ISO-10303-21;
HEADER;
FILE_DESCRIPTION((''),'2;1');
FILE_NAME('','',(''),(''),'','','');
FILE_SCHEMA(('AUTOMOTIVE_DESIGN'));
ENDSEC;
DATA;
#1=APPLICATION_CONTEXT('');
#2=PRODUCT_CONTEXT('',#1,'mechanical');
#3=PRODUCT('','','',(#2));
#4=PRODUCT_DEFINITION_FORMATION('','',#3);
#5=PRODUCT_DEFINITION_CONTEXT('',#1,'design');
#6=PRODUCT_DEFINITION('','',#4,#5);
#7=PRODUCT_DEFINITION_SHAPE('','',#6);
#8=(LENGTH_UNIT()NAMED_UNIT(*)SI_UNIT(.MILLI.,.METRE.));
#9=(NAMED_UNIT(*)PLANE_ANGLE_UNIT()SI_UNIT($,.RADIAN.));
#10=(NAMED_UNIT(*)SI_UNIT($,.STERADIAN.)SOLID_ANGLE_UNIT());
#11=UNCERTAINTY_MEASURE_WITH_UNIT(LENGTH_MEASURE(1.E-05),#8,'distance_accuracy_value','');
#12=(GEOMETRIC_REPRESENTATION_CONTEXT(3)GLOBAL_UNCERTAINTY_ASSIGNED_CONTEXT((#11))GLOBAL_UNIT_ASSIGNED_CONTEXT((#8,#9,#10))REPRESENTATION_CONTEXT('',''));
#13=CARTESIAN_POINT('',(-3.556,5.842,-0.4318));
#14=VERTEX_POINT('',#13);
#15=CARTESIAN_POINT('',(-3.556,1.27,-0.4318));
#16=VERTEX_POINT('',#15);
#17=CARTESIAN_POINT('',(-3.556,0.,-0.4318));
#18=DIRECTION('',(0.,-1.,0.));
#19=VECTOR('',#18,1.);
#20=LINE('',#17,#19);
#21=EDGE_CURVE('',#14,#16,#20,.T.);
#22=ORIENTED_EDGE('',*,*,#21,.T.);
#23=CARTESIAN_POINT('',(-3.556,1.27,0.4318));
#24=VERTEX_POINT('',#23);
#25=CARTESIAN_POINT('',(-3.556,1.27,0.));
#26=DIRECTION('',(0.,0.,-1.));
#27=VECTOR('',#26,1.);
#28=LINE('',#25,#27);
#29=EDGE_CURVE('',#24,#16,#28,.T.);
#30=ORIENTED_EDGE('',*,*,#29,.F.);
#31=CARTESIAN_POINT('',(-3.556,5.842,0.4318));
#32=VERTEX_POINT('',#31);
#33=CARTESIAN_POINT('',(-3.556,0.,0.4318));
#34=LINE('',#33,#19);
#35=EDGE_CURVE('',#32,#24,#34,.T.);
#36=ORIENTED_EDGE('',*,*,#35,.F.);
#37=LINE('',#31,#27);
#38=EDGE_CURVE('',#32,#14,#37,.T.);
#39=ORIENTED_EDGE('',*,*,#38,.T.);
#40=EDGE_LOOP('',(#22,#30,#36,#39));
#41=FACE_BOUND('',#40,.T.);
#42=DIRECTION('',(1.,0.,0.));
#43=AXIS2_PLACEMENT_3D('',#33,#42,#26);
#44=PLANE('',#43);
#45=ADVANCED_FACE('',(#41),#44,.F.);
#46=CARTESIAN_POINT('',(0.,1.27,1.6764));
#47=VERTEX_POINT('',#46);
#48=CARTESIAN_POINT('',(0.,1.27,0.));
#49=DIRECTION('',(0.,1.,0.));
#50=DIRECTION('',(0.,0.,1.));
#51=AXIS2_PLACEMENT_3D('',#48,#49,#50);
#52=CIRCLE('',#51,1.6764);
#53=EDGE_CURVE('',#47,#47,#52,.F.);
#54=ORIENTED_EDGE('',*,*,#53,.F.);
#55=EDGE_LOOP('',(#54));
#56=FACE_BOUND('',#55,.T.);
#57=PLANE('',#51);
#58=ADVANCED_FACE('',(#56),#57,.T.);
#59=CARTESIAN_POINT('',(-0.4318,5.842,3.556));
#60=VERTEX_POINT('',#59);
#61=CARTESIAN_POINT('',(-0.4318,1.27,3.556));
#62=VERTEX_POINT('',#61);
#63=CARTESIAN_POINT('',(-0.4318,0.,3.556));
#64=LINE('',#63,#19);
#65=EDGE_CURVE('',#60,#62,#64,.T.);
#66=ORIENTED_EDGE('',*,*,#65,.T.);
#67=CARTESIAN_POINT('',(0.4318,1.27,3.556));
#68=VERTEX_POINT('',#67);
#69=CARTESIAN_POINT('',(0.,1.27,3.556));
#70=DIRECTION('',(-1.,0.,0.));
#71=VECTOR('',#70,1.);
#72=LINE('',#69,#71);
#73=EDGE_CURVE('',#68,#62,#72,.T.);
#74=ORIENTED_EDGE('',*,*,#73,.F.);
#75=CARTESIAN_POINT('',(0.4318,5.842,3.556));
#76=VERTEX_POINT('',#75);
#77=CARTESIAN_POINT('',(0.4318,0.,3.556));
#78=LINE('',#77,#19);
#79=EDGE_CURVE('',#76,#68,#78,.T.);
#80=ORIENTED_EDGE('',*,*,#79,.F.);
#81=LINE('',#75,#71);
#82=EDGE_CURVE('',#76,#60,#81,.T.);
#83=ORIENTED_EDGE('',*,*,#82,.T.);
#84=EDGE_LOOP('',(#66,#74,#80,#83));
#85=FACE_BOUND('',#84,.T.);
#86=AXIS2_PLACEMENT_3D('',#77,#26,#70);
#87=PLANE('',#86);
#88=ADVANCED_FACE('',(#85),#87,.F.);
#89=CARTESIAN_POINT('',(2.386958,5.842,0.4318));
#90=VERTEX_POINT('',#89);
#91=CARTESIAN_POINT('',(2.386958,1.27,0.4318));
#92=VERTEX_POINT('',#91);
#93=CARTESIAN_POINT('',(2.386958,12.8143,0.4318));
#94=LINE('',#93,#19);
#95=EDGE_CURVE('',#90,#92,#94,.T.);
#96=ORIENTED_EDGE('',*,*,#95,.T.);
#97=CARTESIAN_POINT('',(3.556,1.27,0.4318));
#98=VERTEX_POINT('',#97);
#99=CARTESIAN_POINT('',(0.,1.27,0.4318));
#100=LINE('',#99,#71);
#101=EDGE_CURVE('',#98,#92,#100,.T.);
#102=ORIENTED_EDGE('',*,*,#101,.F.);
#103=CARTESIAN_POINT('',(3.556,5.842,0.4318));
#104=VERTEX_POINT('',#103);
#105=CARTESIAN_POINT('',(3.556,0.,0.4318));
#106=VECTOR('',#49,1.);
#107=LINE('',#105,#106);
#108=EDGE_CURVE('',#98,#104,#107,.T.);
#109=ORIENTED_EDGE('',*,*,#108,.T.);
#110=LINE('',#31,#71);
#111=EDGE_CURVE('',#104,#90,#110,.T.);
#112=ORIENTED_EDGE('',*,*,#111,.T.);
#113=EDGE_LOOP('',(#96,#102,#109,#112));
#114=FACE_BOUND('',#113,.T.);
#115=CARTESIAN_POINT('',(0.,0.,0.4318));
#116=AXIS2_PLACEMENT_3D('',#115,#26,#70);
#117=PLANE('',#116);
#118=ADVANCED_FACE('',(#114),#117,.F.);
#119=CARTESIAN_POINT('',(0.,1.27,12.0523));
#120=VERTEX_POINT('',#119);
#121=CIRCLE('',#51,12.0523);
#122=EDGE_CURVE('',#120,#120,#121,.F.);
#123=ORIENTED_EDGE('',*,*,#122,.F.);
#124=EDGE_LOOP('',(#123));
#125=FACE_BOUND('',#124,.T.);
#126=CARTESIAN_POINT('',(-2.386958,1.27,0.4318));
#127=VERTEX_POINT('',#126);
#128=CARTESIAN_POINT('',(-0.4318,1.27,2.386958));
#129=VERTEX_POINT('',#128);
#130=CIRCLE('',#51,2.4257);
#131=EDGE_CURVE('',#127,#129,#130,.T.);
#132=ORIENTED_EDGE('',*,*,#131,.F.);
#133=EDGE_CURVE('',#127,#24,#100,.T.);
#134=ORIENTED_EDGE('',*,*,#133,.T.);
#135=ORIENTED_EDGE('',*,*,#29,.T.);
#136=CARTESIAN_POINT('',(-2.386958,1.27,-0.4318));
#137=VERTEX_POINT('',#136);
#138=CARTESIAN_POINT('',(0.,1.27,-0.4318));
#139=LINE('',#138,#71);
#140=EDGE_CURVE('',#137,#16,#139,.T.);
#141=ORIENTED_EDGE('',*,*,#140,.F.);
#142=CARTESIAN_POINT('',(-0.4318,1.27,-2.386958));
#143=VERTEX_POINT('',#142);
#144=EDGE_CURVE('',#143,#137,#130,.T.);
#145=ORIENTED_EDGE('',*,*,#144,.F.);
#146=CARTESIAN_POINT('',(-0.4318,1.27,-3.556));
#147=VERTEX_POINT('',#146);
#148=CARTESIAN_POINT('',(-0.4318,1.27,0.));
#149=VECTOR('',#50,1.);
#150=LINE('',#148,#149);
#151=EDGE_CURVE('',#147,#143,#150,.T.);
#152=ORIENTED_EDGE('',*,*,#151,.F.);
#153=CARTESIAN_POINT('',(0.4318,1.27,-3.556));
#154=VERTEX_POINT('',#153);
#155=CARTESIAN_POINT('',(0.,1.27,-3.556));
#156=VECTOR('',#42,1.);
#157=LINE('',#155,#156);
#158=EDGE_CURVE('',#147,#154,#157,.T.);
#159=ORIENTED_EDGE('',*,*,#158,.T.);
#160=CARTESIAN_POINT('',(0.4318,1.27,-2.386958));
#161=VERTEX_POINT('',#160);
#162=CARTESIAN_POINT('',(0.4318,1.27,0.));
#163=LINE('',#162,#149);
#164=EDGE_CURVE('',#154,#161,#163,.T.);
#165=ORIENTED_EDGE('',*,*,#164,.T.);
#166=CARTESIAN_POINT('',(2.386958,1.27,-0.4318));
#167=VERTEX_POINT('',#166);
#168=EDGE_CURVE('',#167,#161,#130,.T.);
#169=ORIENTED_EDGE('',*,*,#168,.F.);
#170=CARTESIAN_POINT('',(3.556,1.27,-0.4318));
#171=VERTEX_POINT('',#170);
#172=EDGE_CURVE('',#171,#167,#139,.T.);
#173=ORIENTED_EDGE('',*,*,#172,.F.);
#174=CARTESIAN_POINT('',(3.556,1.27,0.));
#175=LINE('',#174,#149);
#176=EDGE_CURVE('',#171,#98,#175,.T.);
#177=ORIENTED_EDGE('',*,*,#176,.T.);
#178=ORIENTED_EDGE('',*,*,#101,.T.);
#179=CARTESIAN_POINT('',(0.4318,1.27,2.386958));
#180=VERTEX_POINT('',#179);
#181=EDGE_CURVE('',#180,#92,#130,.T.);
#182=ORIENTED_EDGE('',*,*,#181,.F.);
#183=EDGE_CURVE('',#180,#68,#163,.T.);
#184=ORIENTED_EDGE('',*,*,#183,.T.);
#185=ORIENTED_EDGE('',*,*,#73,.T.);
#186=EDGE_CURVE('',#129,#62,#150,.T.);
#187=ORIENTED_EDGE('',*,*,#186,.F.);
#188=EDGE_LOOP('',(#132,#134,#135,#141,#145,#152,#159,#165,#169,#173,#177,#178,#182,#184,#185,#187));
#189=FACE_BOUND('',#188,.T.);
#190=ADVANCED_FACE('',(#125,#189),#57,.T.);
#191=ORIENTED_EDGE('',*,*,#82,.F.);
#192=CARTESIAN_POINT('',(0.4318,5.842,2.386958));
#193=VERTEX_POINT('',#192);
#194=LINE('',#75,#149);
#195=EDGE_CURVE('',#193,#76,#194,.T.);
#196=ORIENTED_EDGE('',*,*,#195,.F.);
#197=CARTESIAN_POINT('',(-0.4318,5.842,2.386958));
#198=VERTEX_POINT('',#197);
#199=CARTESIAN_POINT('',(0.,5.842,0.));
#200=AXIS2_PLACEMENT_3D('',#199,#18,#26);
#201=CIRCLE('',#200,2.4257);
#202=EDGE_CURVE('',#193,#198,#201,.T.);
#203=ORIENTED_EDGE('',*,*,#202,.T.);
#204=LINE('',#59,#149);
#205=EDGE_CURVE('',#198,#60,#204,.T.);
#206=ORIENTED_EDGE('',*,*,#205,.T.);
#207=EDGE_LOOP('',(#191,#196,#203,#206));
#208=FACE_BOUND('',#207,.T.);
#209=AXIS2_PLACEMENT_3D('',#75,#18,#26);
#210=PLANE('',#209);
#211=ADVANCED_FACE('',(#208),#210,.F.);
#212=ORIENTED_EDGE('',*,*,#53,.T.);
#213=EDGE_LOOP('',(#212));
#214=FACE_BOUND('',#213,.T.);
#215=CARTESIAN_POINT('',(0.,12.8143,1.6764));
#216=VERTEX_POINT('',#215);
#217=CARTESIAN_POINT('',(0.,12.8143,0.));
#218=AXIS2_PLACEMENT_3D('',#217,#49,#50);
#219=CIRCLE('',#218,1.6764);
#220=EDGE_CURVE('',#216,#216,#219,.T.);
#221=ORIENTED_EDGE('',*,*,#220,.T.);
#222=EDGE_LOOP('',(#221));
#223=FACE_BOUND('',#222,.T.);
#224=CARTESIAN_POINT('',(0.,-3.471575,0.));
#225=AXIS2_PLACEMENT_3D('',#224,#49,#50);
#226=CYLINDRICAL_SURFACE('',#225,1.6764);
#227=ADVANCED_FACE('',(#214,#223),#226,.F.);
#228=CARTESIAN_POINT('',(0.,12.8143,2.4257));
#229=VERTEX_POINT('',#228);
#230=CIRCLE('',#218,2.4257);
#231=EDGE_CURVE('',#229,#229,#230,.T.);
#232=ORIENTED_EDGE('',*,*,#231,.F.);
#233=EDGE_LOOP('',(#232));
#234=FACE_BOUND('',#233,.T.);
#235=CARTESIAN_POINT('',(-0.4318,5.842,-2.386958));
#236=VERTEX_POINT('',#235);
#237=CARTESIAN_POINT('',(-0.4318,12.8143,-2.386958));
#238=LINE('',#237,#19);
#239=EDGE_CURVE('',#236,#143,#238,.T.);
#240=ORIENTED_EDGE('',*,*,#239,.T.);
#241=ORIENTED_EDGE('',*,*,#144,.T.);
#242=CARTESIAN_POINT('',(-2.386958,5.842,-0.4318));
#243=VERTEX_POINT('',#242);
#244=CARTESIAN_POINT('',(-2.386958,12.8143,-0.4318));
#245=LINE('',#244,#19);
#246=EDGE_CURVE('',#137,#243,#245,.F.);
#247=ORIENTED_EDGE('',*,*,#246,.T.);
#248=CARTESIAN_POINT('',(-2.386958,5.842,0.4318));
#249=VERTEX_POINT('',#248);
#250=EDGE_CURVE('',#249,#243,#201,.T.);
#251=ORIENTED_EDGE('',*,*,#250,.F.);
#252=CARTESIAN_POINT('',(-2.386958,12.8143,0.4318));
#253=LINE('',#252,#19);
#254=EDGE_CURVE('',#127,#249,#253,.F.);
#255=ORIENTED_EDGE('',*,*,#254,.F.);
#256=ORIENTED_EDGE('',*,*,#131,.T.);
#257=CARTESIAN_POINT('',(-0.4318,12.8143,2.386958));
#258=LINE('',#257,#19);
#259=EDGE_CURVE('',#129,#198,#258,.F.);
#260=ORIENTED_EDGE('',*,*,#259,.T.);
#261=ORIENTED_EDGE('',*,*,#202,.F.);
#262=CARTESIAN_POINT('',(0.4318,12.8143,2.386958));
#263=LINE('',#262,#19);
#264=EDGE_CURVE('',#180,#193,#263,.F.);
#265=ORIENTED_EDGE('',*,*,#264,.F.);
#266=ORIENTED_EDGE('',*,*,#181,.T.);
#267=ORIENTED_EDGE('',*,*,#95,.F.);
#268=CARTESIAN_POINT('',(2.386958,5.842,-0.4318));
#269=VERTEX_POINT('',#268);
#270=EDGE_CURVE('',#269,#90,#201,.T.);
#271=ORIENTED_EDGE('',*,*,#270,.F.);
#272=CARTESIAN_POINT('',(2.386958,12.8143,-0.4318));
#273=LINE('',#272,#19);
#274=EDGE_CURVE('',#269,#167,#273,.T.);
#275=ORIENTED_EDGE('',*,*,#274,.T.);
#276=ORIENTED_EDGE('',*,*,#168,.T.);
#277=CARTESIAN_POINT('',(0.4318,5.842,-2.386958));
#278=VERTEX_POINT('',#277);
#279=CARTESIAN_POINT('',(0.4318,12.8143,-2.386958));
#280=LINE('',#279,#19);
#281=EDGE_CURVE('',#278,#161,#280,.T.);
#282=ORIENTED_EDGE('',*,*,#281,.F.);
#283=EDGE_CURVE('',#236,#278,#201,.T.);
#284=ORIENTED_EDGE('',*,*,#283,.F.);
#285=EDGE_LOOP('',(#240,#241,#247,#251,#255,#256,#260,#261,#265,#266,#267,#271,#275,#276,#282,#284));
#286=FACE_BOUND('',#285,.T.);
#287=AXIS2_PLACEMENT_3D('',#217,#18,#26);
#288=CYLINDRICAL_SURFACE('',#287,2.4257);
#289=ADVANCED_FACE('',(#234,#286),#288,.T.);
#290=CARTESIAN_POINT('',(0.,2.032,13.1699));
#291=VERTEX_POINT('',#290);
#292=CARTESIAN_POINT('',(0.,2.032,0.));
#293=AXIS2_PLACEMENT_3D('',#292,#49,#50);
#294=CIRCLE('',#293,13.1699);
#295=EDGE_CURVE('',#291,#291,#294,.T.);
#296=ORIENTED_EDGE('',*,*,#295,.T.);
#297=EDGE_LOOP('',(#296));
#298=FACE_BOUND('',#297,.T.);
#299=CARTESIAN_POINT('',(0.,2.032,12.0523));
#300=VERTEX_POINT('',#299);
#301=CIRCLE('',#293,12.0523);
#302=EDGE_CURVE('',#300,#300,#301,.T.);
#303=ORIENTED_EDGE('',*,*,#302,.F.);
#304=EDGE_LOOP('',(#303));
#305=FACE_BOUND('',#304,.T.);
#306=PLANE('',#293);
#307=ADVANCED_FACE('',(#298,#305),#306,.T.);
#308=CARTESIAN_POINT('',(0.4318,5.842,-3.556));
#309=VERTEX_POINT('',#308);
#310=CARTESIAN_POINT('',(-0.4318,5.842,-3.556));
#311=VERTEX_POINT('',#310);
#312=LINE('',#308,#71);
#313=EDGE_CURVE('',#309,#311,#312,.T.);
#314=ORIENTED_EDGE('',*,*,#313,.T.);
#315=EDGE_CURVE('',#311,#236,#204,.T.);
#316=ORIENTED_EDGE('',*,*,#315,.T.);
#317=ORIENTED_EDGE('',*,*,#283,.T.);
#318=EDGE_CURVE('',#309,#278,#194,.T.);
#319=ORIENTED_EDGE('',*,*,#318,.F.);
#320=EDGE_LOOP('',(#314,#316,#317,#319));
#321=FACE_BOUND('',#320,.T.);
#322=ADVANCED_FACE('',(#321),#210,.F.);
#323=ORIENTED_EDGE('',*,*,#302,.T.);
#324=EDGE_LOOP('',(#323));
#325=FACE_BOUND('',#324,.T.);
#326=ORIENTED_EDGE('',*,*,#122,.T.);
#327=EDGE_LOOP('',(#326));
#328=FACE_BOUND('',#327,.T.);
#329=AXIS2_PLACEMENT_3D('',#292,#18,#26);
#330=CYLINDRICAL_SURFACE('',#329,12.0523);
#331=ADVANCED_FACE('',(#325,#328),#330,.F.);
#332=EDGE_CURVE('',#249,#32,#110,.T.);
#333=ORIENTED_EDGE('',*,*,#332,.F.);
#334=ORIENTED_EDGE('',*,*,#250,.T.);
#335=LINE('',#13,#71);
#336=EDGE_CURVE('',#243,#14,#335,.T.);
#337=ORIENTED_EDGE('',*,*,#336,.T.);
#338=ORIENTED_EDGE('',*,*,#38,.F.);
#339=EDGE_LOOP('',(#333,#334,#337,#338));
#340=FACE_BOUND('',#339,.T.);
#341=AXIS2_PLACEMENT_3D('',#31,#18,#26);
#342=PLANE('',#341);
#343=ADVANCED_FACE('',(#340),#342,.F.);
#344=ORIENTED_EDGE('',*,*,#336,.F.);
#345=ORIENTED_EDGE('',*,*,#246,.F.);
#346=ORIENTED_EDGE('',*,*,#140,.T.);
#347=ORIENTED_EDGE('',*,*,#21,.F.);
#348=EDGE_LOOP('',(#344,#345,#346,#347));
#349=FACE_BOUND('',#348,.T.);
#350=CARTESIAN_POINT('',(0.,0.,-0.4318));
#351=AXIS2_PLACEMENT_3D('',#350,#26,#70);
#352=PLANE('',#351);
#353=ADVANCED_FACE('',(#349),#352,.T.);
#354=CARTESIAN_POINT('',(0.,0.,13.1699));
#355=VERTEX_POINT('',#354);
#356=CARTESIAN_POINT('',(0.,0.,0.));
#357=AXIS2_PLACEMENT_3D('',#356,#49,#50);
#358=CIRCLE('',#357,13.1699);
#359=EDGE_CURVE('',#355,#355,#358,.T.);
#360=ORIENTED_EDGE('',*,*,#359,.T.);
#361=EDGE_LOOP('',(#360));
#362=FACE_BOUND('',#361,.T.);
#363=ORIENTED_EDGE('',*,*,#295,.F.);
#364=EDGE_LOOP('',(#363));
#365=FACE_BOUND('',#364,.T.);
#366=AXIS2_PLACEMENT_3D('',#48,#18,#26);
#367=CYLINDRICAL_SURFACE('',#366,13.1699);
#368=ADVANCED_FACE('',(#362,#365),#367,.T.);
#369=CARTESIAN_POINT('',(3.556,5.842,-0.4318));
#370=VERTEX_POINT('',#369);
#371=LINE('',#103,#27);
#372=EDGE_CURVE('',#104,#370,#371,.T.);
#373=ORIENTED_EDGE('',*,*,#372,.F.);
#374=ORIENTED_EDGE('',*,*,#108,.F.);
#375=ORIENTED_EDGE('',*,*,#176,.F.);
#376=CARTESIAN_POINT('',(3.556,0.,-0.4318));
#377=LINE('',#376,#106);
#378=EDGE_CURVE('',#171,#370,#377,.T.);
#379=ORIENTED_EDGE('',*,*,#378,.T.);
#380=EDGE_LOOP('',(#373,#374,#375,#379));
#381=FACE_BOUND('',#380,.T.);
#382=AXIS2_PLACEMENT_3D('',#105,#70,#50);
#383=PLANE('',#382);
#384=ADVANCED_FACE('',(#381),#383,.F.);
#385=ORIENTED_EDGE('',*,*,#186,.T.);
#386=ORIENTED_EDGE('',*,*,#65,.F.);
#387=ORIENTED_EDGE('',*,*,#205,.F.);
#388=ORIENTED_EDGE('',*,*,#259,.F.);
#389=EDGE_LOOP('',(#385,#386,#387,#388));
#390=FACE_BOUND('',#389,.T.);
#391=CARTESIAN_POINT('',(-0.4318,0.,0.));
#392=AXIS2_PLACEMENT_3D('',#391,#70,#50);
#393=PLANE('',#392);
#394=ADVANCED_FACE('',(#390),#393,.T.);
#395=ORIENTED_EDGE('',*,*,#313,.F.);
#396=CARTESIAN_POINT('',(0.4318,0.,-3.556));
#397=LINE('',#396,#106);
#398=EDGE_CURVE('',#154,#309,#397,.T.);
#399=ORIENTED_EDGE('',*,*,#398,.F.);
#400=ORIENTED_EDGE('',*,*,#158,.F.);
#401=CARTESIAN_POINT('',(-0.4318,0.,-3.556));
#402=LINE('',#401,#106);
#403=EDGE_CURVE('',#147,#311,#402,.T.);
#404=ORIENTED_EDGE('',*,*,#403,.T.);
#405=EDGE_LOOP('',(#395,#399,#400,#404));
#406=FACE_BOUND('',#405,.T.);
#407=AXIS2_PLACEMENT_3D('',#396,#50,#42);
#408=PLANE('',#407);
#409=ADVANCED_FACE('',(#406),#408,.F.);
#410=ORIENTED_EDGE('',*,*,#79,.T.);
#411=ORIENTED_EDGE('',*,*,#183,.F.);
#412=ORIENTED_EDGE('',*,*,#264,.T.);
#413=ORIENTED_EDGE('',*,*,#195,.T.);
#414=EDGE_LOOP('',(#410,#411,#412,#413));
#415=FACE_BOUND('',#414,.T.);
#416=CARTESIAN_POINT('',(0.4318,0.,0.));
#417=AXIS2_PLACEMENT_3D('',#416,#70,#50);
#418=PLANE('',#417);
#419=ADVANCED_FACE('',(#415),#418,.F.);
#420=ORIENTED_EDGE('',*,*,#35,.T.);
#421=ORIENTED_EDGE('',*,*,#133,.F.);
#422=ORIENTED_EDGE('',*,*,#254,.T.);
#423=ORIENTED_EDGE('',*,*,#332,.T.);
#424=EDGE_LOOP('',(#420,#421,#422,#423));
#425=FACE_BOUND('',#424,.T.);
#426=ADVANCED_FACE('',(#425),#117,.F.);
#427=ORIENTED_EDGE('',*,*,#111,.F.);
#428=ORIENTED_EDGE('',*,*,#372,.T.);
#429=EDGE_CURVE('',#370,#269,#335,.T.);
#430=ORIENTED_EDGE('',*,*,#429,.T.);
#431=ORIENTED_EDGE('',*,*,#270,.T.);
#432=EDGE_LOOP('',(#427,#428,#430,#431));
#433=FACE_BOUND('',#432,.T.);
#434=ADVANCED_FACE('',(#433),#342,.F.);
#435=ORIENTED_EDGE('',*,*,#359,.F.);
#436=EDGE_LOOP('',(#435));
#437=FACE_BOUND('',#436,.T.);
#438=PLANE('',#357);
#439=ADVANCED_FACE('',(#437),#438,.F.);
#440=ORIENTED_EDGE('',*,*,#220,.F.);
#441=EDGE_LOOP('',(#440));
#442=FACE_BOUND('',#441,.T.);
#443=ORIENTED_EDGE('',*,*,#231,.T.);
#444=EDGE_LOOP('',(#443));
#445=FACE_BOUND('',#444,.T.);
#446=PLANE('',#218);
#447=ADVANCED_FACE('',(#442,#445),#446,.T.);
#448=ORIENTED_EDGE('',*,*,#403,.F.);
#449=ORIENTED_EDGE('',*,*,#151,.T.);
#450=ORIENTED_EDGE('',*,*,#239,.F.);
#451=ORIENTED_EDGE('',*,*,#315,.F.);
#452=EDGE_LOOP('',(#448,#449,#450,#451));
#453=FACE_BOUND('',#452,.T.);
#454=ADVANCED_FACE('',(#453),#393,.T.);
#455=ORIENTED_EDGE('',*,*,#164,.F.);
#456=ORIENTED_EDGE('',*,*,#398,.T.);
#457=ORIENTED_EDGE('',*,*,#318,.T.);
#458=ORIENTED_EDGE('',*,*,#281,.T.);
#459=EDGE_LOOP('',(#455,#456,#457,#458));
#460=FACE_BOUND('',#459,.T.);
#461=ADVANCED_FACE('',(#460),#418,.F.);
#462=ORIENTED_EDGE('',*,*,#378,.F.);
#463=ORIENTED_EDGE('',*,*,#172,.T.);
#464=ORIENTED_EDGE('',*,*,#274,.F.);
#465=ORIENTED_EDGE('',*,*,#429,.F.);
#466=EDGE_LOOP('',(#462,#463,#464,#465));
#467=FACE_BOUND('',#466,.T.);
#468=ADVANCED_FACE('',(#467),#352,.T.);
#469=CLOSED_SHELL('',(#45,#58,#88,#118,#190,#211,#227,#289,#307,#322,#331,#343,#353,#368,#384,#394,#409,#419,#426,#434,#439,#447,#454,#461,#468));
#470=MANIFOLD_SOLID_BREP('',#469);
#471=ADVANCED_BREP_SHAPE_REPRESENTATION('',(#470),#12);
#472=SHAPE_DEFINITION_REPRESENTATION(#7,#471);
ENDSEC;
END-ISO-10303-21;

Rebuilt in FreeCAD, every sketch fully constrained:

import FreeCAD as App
import Part
import Sketcher

V = App.Vector
Q = App.Units.Quantity


def add_polygon(sketch, points):
    """Adds a closed chain of lines whose ends are joined by coincident constraints."""
    first, n = sketch.GeometryCount, len(points)
    for a, b in zip(points, points[1:] + points[:1]):
        sketch.addGeometry(Part.LineSegment(App.Vector(*a, 0), App.Vector(*b, 0)), False)
    for i in range(n):
        sketch.addConstraint(Sketcher.Constraint("Coincident", first + i, 2, first + (i + 1) % n, 1))

doc = App.newDocument("Part")
body = doc.addObject("PartDesign::Body", "Body")

# Sketch on XZ plane
sketch1 = doc.addObject("Sketcher::SketchObject", "Sketch")
body.addObject(sketch1)
sketch1.AttachmentSupport = (doc.XZ_Plane, [""])
sketch1.MapMode = "FlatFace"
sketch1.addGeometry(Part.Circle(V(0, 0, 0), V(0, 0, 1), 13.1699), False)
sketch1.addConstraint([
    Sketcher.Constraint("Coincident", 0, 3, -1, 1),
    Sketcher.Constraint("Diameter", 0, Q("1.037 in")),
])
pad1 = doc.addObject("PartDesign::Pad", "Pad")
body.addObject(pad1)
pad1.Profile = sketch1
pad1.Length = Q("0.05 in")
pad1.Reversed = True

# Sketch on XZ plane
sketch2 = doc.addObject("Sketcher::SketchObject", "Sketch001")
body.addObject(sketch2)
sketch2.AttachmentSupport = (doc.XZ_Plane, [""])
sketch2.MapMode = "FlatFace"
sketch2.AttachmentOffset = App.Placement(V(0, 0, -0.05 * 25.4), App.Rotation())
sketch2.addGeometry([
    Part.Circle(V(0, 0, 0), V(0, 0, 1), 13.1699),
    Part.Circle(V(0, 0, 0), V(0, 0, 1), 12.0523),
], False)
sketch2.addConstraint([
    Sketcher.Constraint("Coincident", 0, 3, -1, 1),
    Sketcher.Constraint("Coincident", 1, 3, -1, 1),
    Sketcher.Constraint("Diameter", 0, Q("1.037 in")),
    Sketcher.Constraint("Diameter", 1, Q("0.949 in")),
])
pad2 = doc.addObject("PartDesign::Pad", "Pad001")
body.addObject(pad2)
pad2.Profile = sketch2
pad2.Length = Q("0.03 in")
pad2.Reversed = True

# Sketch on XZ plane
sketch3 = doc.addObject("Sketcher::SketchObject", "Sketch002")
body.addObject(sketch3)
sketch3.AttachmentSupport = (doc.XZ_Plane, [""])
sketch3.MapMode = "FlatFace"
sketch3.AttachmentOffset = App.Placement(V(0, 0, -0.05 * 25.4), App.Rotation())
sketch3.addGeometry(Part.Circle(V(0, 0, 0), V(0, 0, 1), 2.4257), False)
sketch3.addConstraint([
    Sketcher.Constraint("Coincident", 0, 3, -1, 1),
    Sketcher.Constraint("Diameter", 0, Q("0.191 in")),
])
pad3 = doc.addObject("PartDesign::Pad", "Pad002")
body.addObject(pad3)
pad3.Profile = sketch3
pad3.Length = Q("0.4545 in")
pad3.Reversed = True

# Sketch on XY plane
sketch4 = doc.addObject("Sketcher::SketchObject", "Sketch003")
body.addObject(sketch4)
sketch4.AttachmentSupport = (doc.XY_Plane, [""])
sketch4.MapMode = "FlatFace"
add_polygon(sketch4, [(-3.556, 5.842), (-3.556, 0), (3.556, 0), (3.556, 5.842)])  # lines 0-3
sketch4.addConstraint([
    Sketcher.Constraint("Vertical", 0),
    Sketcher.Constraint("Horizontal", 1),
    Sketcher.Constraint("Vertical", 2),
    Sketcher.Constraint("Horizontal", 3),
    Sketcher.Constraint("Symmetric", 0, 2, 1, 2, -1, 1),
    Sketcher.Constraint("DistanceX", 1, 1, 1, 2, Q("0.28 in")),
    Sketcher.Constraint("DistanceY", 0, 2, 0, 1, Q("0.23 in")),
])
pad4 = doc.addObject("PartDesign::Pad", "Pad003")
body.addObject(pad4)
pad4.Profile = sketch4
pad4.Length = Q("0.034 in")
pad4.Midplane = True

# Sketch on YZ plane
sketch5 = doc.addObject("Sketcher::SketchObject", "Sketch004")
body.addObject(sketch5)
sketch5.AttachmentSupport = (doc.YZ_Plane, [""])
sketch5.MapMode = "FlatFace"
add_polygon(sketch5, [(5.842, 3.556), (0, 3.556), (0, -3.556), (5.842, -3.556)])  # lines 0-3
sketch5.addConstraint([
    Sketcher.Constraint("Horizontal", 0),
    Sketcher.Constraint("Vertical", 1),
    Sketcher.Constraint("Horizontal", 2),
    Sketcher.Constraint("Vertical", 3),
    Sketcher.Constraint("Symmetric", 0, 2, 1, 2, -1, 1),
    Sketcher.Constraint("DistanceX", 0, 2, 0, 1, Q("0.23 in")),
    Sketcher.Constraint("DistanceY", 1, 2, 1, 1, Q("0.28 in")),
])
pad5 = doc.addObject("PartDesign::Pad", "Pad004")
body.addObject(pad5)
pad5.Profile = sketch5
pad5.Length = Q("0.034 in")
pad5.Midplane = True

# Sketch on XZ plane
sketch6 = doc.addObject("Sketcher::SketchObject", "Sketch005")
body.addObject(sketch6)
sketch6.AttachmentSupport = (doc.XZ_Plane, [""])
sketch6.MapMode = "FlatFace"
sketch6.AttachmentOffset = App.Placement(V(0, 0, -0.5045 * 25.4), App.Rotation())
sketch6.addGeometry(Part.Circle(V(0, 0, 0), V(0, 0, 1), 1.6764), False)
sketch6.addConstraint([
    Sketcher.Constraint("Coincident", 0, 3, -1, 1),
    Sketcher.Constraint("Diameter", 0, Q("0.132 in")),
])
pocket1 = doc.addObject("PartDesign::Pocket", "Pocket")
body.addObject(pocket1)
pocket1.Profile = sketch6
pocket1.Length = Q("0.4545 in")
pocket1.Reversed = True

doc.recompute()
